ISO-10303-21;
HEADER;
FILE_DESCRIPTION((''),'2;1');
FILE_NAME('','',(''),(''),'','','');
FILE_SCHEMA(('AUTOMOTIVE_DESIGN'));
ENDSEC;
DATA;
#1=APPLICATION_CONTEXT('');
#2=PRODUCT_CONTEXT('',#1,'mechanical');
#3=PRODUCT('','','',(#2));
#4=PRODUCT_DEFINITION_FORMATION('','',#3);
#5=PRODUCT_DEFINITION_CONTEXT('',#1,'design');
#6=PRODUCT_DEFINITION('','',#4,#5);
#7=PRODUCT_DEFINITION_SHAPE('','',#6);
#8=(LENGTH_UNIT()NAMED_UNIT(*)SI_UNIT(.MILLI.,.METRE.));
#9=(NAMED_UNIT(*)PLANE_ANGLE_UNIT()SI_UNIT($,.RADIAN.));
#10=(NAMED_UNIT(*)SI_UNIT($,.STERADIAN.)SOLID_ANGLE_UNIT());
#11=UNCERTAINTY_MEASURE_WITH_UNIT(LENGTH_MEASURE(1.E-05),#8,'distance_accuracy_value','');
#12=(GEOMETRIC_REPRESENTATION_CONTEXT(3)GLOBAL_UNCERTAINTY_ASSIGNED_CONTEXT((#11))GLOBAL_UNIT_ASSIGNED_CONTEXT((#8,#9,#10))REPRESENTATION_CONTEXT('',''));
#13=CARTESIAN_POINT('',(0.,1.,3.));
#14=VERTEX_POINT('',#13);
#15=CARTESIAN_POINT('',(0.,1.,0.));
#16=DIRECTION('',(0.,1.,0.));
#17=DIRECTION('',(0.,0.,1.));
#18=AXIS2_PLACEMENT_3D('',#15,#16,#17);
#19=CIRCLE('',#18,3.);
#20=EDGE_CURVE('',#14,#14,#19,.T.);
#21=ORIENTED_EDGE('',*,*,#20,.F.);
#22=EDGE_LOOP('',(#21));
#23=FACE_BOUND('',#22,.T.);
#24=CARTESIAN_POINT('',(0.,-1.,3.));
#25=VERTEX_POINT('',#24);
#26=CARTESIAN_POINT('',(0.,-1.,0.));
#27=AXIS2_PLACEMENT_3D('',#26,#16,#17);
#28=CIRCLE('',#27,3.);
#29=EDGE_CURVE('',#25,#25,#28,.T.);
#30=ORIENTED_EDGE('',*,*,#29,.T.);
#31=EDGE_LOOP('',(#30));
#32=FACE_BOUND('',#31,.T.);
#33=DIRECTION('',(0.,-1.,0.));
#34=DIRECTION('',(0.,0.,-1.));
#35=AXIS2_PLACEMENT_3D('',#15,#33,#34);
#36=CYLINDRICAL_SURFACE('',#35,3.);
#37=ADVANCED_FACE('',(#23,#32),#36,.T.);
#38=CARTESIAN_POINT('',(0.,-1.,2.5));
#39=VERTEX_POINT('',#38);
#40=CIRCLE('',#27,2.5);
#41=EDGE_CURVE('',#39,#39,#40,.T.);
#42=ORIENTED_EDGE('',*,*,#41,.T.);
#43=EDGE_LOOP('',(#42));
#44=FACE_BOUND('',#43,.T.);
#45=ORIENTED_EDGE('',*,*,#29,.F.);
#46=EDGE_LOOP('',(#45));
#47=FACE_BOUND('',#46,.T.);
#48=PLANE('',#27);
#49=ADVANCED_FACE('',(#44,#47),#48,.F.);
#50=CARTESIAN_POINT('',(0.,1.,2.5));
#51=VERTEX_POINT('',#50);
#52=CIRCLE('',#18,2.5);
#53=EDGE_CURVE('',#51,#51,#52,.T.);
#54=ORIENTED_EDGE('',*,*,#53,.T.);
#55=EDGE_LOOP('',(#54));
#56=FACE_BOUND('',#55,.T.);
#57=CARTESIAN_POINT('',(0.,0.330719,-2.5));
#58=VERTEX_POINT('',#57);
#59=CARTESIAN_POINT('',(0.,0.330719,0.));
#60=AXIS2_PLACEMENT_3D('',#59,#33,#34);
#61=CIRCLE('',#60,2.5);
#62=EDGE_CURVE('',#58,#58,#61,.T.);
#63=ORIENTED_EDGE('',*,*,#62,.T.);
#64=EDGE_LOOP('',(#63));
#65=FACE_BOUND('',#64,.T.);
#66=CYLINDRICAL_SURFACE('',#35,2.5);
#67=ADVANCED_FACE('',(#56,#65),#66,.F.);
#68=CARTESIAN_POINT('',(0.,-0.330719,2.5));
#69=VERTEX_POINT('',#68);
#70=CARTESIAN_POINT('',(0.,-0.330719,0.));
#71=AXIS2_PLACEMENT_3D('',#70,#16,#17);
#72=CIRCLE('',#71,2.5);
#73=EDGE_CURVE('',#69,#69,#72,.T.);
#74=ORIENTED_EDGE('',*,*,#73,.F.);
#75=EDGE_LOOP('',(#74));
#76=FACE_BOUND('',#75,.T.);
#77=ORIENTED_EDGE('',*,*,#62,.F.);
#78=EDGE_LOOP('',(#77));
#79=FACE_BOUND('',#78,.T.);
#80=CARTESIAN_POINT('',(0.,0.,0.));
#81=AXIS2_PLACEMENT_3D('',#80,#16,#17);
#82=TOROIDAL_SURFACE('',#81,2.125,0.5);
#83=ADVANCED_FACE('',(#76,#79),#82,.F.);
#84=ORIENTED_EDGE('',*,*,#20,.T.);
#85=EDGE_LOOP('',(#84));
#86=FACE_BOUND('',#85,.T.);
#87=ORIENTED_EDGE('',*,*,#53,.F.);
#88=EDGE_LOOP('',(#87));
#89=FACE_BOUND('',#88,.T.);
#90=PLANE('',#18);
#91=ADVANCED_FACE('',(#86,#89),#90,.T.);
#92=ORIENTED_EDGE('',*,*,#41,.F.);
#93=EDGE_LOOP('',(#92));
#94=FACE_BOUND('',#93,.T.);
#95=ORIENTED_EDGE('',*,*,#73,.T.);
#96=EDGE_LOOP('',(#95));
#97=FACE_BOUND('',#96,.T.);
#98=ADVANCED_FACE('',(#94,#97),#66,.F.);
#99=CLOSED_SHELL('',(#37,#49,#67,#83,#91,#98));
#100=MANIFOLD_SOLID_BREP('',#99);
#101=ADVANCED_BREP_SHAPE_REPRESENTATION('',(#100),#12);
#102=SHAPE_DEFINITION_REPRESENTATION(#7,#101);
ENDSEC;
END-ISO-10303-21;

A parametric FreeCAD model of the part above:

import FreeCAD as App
import Part
import Sketcher

V = App.Vector
Q = App.Units.Quantity

doc = App.newDocument("Part")
params = doc.addObject("Spreadsheet::Sheet", "Params")
for row, (alias, value) in enumerate([
    ("sketch1_diameter", "6 mm"),
    ("sketch1_diameter2", "5 mm"),
    ("pad1_length", "2 mm"),
    ("sketch2_diameter", "1 mm"),
    ("groove_angle", "360 deg"),
], start=1):
    params.set(f"A{row}", alias)
    params.set(f"B{row}", "=" + value)
    params.setAlias(f"B{row}", alias)

body = doc.addObject("PartDesign::Body", "Body")

# Sketch on XZ plane
sketch1 = body.newObject("Sketcher::SketchObject", "Sketch")
sketch1.AttachmentSupport = (doc.getObject("XZ_Plane"), [""])
sketch1.MapMode = "FlatFace"
sketch1.addGeometry([
    Part.Circle(V(0, 0, 0), V(0, 0, 1), 3),
    Part.Circle(V(0, 0, 0), V(0, 0, 1), 2.5),
], False)
sketch1.addConstraint([
    Sketcher.Constraint("Coincident", 0, 3, -1, 1),
    Sketcher.Constraint("Coincident", 1, 3, -1, 1),
    Sketcher.Constraint("Diameter", 0, Q("6 mm")),
    Sketcher.Constraint("Diameter", 1, Q("5 mm")),
])
sketch1.setExpression("Constraints[2]", "Params.sketch1_diameter")
sketch1.setExpression("Constraints[3]", "Params.sketch1_diameter2")
pad1 = body.newObject("PartDesign::Pad", "Pad")
pad1.Profile = sketch1
pad1.setExpression("Length", "Params.pad1_length")
pad1.Midplane = True

# Sketch on XY plane
sketch2 = body.newObject("Sketcher::SketchObject", "Sketch001")
sketch2.AttachmentSupport = (doc.getObject("XY_Plane"), [""])
sketch2.MapMode = "FlatFace"
sketch2.addGeometry(Part.Circle(V(2.125, 0, 0), V(0, 0, 1), 0.5), False)
sketch2.addConstraint([
    Sketcher.Constraint("PointOnObject", 0, 3, -1),
    Sketcher.Constraint("Diameter", 0, Q("1 mm")),
    Sketcher.Constraint("DistanceX", -1, 1, 0, 3, Q("2.125 mm")),
])
sketch2.setExpression("Constraints[1]", "Params.sketch2_diameter")
groove = body.newObject("PartDesign::Groove", "Groove")
groove.Profile = sketch2
groove.ReferenceAxis = (sketch2, ["V_Axis"])
groove.setExpression("Angle", "Params.groove_angle")

doc.recompute()
